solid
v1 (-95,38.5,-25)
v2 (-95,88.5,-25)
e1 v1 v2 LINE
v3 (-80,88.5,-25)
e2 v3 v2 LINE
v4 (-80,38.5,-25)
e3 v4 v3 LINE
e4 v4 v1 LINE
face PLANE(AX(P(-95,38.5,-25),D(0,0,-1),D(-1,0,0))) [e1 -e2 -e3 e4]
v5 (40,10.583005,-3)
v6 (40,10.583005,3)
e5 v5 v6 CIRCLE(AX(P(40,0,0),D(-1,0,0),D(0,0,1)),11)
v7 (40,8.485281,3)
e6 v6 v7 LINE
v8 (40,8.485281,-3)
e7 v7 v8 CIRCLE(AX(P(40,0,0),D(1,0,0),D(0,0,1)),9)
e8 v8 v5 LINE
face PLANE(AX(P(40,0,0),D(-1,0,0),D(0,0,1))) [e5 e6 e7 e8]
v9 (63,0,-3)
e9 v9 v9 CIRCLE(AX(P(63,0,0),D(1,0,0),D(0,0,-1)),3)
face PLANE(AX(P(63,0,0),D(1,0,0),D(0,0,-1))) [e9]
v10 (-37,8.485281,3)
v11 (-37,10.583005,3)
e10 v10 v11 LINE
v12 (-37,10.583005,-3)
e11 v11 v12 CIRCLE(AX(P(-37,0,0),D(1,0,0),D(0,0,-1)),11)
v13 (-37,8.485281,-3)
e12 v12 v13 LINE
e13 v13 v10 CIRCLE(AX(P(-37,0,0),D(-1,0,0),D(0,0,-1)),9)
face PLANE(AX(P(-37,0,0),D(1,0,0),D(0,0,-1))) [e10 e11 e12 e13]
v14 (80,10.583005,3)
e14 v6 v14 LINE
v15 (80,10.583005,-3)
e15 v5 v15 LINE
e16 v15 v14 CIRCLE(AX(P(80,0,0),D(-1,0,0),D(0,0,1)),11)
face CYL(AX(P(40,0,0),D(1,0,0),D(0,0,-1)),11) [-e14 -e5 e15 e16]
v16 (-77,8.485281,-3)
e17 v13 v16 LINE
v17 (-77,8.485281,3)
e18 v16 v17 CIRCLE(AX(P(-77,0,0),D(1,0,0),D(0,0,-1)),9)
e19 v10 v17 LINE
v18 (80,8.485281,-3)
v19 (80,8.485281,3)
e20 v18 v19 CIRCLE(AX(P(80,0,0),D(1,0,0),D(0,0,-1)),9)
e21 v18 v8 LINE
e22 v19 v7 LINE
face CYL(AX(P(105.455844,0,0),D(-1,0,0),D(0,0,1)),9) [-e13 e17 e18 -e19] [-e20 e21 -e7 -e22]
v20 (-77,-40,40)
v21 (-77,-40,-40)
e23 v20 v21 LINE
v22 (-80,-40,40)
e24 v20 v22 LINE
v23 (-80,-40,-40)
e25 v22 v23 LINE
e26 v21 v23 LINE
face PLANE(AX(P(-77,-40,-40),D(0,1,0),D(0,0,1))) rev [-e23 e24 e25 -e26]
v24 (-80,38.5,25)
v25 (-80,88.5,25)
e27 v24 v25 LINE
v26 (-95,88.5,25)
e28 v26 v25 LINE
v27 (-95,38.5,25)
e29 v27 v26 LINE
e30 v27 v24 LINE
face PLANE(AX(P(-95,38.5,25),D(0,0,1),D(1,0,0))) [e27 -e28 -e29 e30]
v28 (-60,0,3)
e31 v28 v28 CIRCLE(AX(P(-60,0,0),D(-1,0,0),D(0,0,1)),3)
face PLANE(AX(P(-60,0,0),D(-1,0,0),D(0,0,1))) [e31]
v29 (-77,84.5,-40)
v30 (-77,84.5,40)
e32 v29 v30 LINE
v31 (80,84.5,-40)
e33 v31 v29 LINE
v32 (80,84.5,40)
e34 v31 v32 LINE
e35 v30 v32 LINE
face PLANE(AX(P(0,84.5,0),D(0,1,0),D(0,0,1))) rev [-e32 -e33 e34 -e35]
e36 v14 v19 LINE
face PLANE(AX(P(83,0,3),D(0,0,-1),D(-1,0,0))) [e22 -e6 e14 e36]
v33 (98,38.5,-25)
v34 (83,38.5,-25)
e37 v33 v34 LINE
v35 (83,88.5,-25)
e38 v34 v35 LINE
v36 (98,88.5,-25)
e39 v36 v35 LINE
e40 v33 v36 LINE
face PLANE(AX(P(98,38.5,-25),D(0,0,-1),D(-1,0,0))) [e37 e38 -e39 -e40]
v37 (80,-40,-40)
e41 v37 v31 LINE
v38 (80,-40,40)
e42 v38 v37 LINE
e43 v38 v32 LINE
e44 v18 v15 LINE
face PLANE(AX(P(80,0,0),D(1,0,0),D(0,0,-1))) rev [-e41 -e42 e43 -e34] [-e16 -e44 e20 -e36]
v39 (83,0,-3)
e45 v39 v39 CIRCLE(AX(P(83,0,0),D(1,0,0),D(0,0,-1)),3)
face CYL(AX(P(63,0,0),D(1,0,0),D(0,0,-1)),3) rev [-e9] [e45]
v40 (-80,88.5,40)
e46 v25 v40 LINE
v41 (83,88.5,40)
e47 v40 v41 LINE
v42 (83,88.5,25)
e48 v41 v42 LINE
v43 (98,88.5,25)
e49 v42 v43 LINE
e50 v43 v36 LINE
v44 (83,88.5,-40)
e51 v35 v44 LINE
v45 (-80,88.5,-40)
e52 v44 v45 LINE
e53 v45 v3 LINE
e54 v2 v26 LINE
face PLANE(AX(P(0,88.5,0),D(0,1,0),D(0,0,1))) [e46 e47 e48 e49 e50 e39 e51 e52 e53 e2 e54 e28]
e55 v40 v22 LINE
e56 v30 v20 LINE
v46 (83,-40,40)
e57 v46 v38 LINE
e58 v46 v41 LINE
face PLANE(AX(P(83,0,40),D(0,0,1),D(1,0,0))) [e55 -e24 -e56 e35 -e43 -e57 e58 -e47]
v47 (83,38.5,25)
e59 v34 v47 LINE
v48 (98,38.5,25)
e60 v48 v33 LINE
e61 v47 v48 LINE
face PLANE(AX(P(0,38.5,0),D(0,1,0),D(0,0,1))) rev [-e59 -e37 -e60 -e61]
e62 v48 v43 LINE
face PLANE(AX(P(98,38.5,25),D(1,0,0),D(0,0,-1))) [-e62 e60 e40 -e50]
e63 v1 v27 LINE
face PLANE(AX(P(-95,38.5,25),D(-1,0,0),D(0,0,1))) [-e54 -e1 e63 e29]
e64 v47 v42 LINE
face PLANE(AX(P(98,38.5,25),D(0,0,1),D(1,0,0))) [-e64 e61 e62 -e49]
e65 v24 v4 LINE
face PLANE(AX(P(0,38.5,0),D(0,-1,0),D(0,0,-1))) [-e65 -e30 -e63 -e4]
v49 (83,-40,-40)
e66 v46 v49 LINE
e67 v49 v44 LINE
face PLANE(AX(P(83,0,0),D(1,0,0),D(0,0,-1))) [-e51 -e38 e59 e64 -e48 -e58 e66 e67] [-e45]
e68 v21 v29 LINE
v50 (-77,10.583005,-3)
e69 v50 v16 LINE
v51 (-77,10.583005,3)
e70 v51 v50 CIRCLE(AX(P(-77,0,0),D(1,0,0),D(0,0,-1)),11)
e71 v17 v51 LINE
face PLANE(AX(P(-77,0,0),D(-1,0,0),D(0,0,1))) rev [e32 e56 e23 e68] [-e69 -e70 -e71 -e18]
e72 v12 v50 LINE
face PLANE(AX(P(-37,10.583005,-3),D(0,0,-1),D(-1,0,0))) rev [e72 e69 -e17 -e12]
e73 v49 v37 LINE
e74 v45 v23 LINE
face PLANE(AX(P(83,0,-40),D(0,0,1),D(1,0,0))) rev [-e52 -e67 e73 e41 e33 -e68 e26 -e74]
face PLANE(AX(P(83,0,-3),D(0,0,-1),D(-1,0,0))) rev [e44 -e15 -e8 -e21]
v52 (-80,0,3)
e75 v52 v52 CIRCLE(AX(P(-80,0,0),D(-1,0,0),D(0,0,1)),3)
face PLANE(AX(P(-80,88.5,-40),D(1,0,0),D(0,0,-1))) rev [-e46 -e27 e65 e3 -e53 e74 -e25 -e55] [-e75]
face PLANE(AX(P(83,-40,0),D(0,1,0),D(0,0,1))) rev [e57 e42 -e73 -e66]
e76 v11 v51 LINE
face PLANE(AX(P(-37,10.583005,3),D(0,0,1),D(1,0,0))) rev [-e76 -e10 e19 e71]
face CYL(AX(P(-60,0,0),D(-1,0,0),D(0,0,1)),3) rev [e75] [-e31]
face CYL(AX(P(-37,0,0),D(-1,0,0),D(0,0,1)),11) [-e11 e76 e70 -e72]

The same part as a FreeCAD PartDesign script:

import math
import FreeCAD as App
import Part
import Sketcher

V = App.Vector


def add_polygon(sketch, points):
    """Adds a closed chain of lines whose ends are joined by coincident constraints."""
    first, n = sketch.GeometryCount, len(points)
    for a, b in zip(points, points[1:] + points[:1]):
        sketch.addGeometry(Part.LineSegment(App.Vector(*a, 0), App.Vector(*b, 0)), False)
    for i in range(n):
        sketch.addConstraint(Sketcher.Constraint("Coincident", first + i, 2, first + (i + 1) % n, 1))

doc = App.newDocument("Part")
body = doc.addObject("PartDesign::Body", "Body")

sketch1 = doc.addObject("Sketcher::SketchObject", "Sketch")
body.addObject(sketch1)
sketch1.AttachmentSupport = (doc.YZ_Plane, [""])
sketch1.MapMode = "FlatFace"
sketch1.AttachmentOffset = App.Placement(V(0, 0, 80), App.Rotation())
add_polygon(sketch1, [(-40, 40), (-40, -40), (88.5, -40), (88.5, 40)])
sketch1.addGeometry(Part.LineSegment(V(8.5, 3, 0), V(12, 3, 0)), False)
sketch1.addGeometry(Part.LineSegment(V(12, 3, 0), V(12, -3, 0)), False)
sketch1.addGeometry(Part.LineSegment(V(12, -3, 0), V(8.5, -3, 0)), False)
sketch1.addGeometry(Part.ArcOfCircle(Part.Circle(V(0, 0, 0), V(0, 0, 1), 9), math.radians(19), math.radians(341)), False)
sketch1.addConstraint(Sketcher.Constraint("Coincident", 4, 2, 5, 1))
sketch1.addConstraint(Sketcher.Constraint("Coincident", 5, 2, 6, 1))
sketch1.addConstraint(Sketcher.Constraint("Coincident", 6, 2, 7, 2))
sketch1.addConstraint(Sketcher.Constraint("Coincident", 7, 1, 4, 1))
sketch1.addConstraint(Sketcher.Constraint("Vertical", 0))
sketch1.addConstraint(Sketcher.Constraint("Horizontal", 1))
sketch1.addConstraint(Sketcher.Constraint("Vertical", 2))
sketch1.addConstraint(Sketcher.Constraint("Horizontal", 3))
sketch1.addConstraint(Sketcher.Constraint("Horizontal", 4))
sketch1.addConstraint(Sketcher.Constraint("Vertical", 5))
sketch1.addConstraint(Sketcher.Constraint("Horizontal", 6))
sketch1.addConstraint(Sketcher.Constraint("Coincident", 7, 3, -1, 1))
sketch1.addConstraint(Sketcher.Constraint("Vertical", 6, 2, 7, 1))
sketch1.addConstraint(Sketcher.Constraint("Radius", 7, 9.0))
sketch1.addConstraint(Sketcher.Constraint("DistanceY", 0, 2, 0, 1, 80.0))
sketch1.addConstraint(Sketcher.Constraint("DistanceY", 5, 2, 5, 1, 6.0))
sketch1.addConstraint(Sketcher.Constraint("DistanceX", 0, 2, -1, 1, 40.0))
sketch1.addConstraint(Sketcher.Constraint("DistanceY", 0, 2, -1, 1, 40.0))
sketch1.addConstraint(Sketcher.Constraint("DistanceX", -1, 1, 4, 2, 12.0))
sketch1.addConstraint(Sketcher.Constraint("DistanceX", 1, 1, 1, 2, 128.485281))
pad1 = doc.addObject("PartDesign::Pad", "Pad")
body.addObject(pad1)
pad1.Profile = sketch1
pad1.Length = 3

sketch2 = doc.addObject("Sketcher::SketchObject", "Sketch001")
body.addObject(sketch2)
sketch2.AttachmentSupport = (doc.YZ_Plane, [""])
sketch2.MapMode = "FlatFace"
sketch2.AttachmentOffset = App.Placement(V(0, 0, 40), App.Rotation())
sketch2.addGeometry(Part.LineSegment(V(10.6, 3, 0), V(8.5, 3, 0)), False)
sketch2.addGeometry(Part.ArcOfCircle(Part.Circle(V(0, 0, 0), V(0, 0, 1), 9), math.radians(19), math.radians(341)), False)
sketch2.addGeometry(Part.LineSegment(V(8.5, -3, 0), V(10.6, -3, 0)), False)
sketch2.addGeometry(Part.ArcOfCircle(Part.Circle(V(0, 0, 0), V(0, 0, 1), 11), math.radians(16), math.radians(344)), False)
sketch2.addConstraint(Sketcher.Constraint("Coincident", 0, 2, 1, 1))
sketch2.addConstraint(Sketcher.Constraint("Coincident", 1, 2, 2, 1))
sketch2.addConstraint(Sketcher.Constraint("Coincident", 2, 2, 3, 2))
sketch2.addConstraint(Sketcher.Constraint("Coincident", 3, 1, 0, 1))
sketch2.addConstraint(Sketcher.Constraint("Horizontal", 0))
sketch2.addConstraint(Sketcher.Constraint("Horizontal", 2))
sketch2.addConstraint(Sketcher.Constraint("Coincident", 1, 3, -1, 1))
sketch2.addConstraint(Sketcher.Constraint("Coincident", 3, 3, -1, 1))
sketch2.addConstraint(Sketcher.Constraint("Vertical", 0, 2, 1, 2))
sketch2.addConstraint(Sketcher.Constraint("Radius", 1, 9.0))
sketch2.addConstraint(Sketcher.Constraint("Radius", 3, 11.0))
sketch2.addConstraint(Sketcher.Constraint("DistanceY", -1, 1, 0, 2, 3.0))
pad2 = doc.addObject("PartDesign::Pad", "Pad001")
body.addObject(pad2)
pad2.Profile = sketch2
pad2.Length = 40
body2 = doc.addObject("PartDesign::Body", "Body001")

sketch3 = doc.addObject("Sketcher::SketchObject", "Sketch002")
body2.addObject(sketch3)
sketch3.AttachmentSupport = (doc.getObject("YZ_Plane001"), [""])
sketch3.MapMode = "FlatFace"
sketch3.AttachmentOffset = App.Placement(V(0, 0, -80), App.Rotation())
add_polygon(sketch3, [(88, 40), (-40, 40), (-40, -40), (88, -40)])
sketch3.addConstraint(Sketcher.Constraint("Horizontal", 0))
sketch3.addConstraint(Sketcher.Constraint("Vertical", 1))
sketch3.addConstraint(Sketcher.Constraint("Horizontal", 2))
sketch3.addConstraint(Sketcher.Constraint("Vertical", 3))
sketch3.addConstraint(Sketcher.Constraint("DistanceY", 1, 2, 1, 1, 80.0))
sketch3.addConstraint(Sketcher.Constraint("DistanceX", 0, 2, -1, 1, 40.0))
sketch3.addConstraint(Sketcher.Constraint("DistanceY", -1, 1, 0, 2, 40.0))
sketch3.addConstraint(Sketcher.Constraint("DistanceX", 0, 2, 0, 1, 128.485281))
pad3 = doc.addObject("PartDesign::Pad", "Pad002")
body2.addObject(pad3)
pad3.Profile = sketch3
pad3.Length = 3

sketch4 = doc.addObject("Sketcher::SketchObject", "Sketch003")
body2.addObject(sketch4)
sketch4.AttachmentSupport = (doc.getObject("YZ_Plane001"), [""])
sketch4.MapMode = "FlatFace"
sketch4.AttachmentOffset = App.Placement(V(0, 0, -77), App.Rotation())
sketch4.addGeometry(Part.LineSegment(V(8.5, 3, 0), V(10.6, 3, 0)), False)
sketch4.addGeometry(Part.ArcOfCircle(Part.Circle(V(0, 0, 0), V(0, 0, 1), 11), math.radians(16), math.radians(344)), False)
sketch4.addGeometry(Part.LineSegment(V(10.6, -3, 0), V(8.5, -3, 0)), False)
sketch4.addGeometry(Part.ArcOfCircle(Part.Circle(V(0, 0, 0), V(0, 0, 1), 9), math.radians(19), math.radians(341)), False)
sketch4.addConstraint(Sketcher.Constraint("Coincident", 0, 2, 1, 1))
sketch4.addConstraint(Sketcher.Constraint("Coincident", 1, 2, 2, 1))
sketch4.addConstraint(Sketcher.Constraint("Coincident", 2, 2, 3, 2))
sketch4.addConstraint(Sketcher.Constraint("Coincident", 3, 1, 0, 1))
sketch4.addConstraint(Sketcher.Constraint("Horizontal", 0))
sketch4.addConstraint(Sketcher.Constraint("Horizontal", 2))
sketch4.addConstraint(Sketcher.Constraint("Coincident", 1, 3, -1, 1))
sketch4.addConstraint(Sketcher.Constraint("Coincident", 3, 3, -1, 1))
sketch4.addConstraint(Sketcher.Constraint("Vertical", 0, 2, 1, 2))
sketch4.addConstraint(Sketcher.Constraint("Radius", 1, 11.0))
sketch4.addConstraint(Sketcher.Constraint("Radius", 3, 9.0))
sketch4.addConstraint(Sketcher.Constraint("DistanceY", -1, 1, 0, 2, 3.0))
pad4 = doc.addObject("PartDesign::Pad", "Pad003")
body2.addObject(pad4)
pad4.Profile = sketch4
pad4.Length = 40
body.AllowCompound = True
doc.recompute()

boolean = doc.addObject("PartDesign::Boolean", "Boolean")
body.addObject(boolean)
boolean.Type = "Fuse"
boolean.addObjects([body2])

sketch5 = doc.addObject("Sketcher::SketchObject", "Sketch004")
body.addObject(sketch5)
sketch5.AttachmentSupport = (doc.XZ_Plane, [""])
sketch5.MapMode = "FlatFace"
sketch5.AttachmentOffset = App.Placement(V(0, 0, -84.5), App.Rotation())
add_polygon(sketch5, [(-80, -40), (-80, 40), (83, 40), (83, -40)])
sketch5.addConstraint(Sketcher.Constraint("Vertical", 0))
sketch5.addConstraint(Sketcher.Constraint("Horizontal", 1))
sketch5.addConstraint(Sketcher.Constraint("Vertical", 2))
sketch5.addConstraint(Sketcher.Constraint("Horizontal", 3))
sketch5.addConstraint(Sketcher.Constraint("DistanceX", 1, 1, 1, 2, 163.0))
sketch5.addConstraint(Sketcher.Constraint("DistanceY", 0, 1, 0, 2, 80.0))
sketch5.addConstraint(Sketcher.Constraint("DistanceX", 0, 2, -1, 1, 80.0))
sketch5.addConstraint(Sketcher.Constraint("DistanceY", -1, 1, 0, 2, 40.0))
pad5 = doc.addObject("PartDesign::Pad", "Pad004")
body.addObject(pad5)
pad5.Profile = sketch5
pad5.Length = 4
pad5.Reversed = True

sketch6 = doc.addObject("Sketcher::SketchObject", "Sketch005")
body.addObject(sketch6)
sketch6.AttachmentSupport = (doc.YZ_Plane, [""])
sketch6.MapMode = "FlatFace"
sketch6.AttachmentOffset = App.Placement(V(0, 0, 80), App.Rotation())
sketch6.addGeometry(Part.LineSegment(V(8.5, -3, 0), V(12, -3, 0)), False)
sketch6.addGeometry(Part.LineSegment(V(12, -3, 0), V(12, 3, 0)), False)
sketch6.addGeometry(Part.LineSegment(V(12, 3, 0), V(8.5, 3, 0)), False)
sketch6.addGeometry(Part.ArcOfCircle(Part.Circle(V(0, 0, 0), V(0, 0, 1), 9), math.radians(19), math.radians(341)), False)
sketch6.addConstraint(Sketcher.Constraint("Coincident", 0, 2, 1, 1))
sketch6.addConstraint(Sketcher.Constraint("Coincident", 1, 2, 2, 1))
sketch6.addConstraint(Sketcher.Constraint("Coincident", 2, 2, 3, 1))
sketch6.addConstraint(Sketcher.Constraint("Coincident", 3, 2, 0, 1))
sketch6.addConstraint(Sketcher.Constraint("Horizontal", 0))
sketch6.addConstraint(Sketcher.Constraint("Vertical", 1))
sketch6.addConstraint(Sketcher.Constraint("Horizontal", 2))
sketch6.addConstraint(Sketcher.Constraint("Coincident", 3, 3, -1, 1))
sketch6.addConstraint(Sketcher.Constraint("Vertical", 2, 2, 3, 2))
sketch6.addConstraint(Sketcher.Constraint("Radius", 3, 9.0))
sketch6.addConstraint(Sketcher.Constraint("DistanceY", 1, 1, 1, 2, 6.0))
sketch6.addConstraint(Sketcher.Constraint("DistanceX", -1, 1, 0, 2, 12.0))
pad6 = doc.addObject("PartDesign::Pad", "Pad005")
body.addObject(pad6)
pad6.Profile = sketch6
pad6.Length = 3

sketch7 = doc.addObject("Sketcher::SketchObject", "Sketch006")
body.addObject(sketch7)
sketch7.AttachmentSupport = (doc.XZ_Plane, [""])
sketch7.MapMode = "FlatFace"
sketch7.AttachmentOffset = App.Placement(V(0, 0, -88.5), App.Rotation())
add_polygon(sketch7, [(-95, -25), (-95, 25), (-80, 25), (-80, -25)])
add_polygon(sketch7, [(83, -25), (83, 25), (98, 25), (98, -25)])
sketch7.addConstraint(Sketcher.Constraint("Vertical", 0))
sketch7.addConstraint(Sketcher.Constraint("Horizontal", 1))
sketch7.addConstraint(Sketcher.Constraint("Vertical", 2))
sketch7.addConstraint(Sketcher.Constraint("Horizontal", 3))
sketch7.addConstraint(Sketcher.Constraint("Vertical", 4))
sketch7.addConstraint(Sketcher.Constraint("Horizontal", 5))
sketch7.addConstraint(Sketcher.Constraint("Vertical", 6))
sketch7.addConstraint(Sketcher.Constraint("Horizontal", 7))
sketch7.addConstraint(Sketcher.Constraint("Horizontal", 1, 2, 4, 2))
sketch7.addConstraint(Sketcher.Constraint("Horizontal", 3, 2, 6, 2))
sketch7.addConstraint(Sketcher.Constraint("Equal", 3, 5))
sketch7.addConstraint(Sketcher.Constraint("DistanceX", 1, 1, 1, 2, 15.0))
sketch7.addConstraint(Sketcher.Constraint("DistanceY", 0, 1, 0, 2, 50.0))
sketch7.addConstraint(Sketcher.Constraint("DistanceX", 0, 2, -1, 1, 95.0))
sketch7.addConstraint(Sketcher.Constraint("DistanceY", -1, 1, 0, 2, 25.0))
sketch7.addConstraint(Sketcher.Constraint("DistanceX", -1, 1, 4, 2, 83.0))
pad7 = doc.addObject("PartDesign::Pad", "Pad006")
body.addObject(pad7)
pad7.Profile = sketch7
pad7.Length = 50

sketch8 = doc.addObject("Sketcher::SketchObject", "Sketch007")
body.addObject(sketch8)
sketch8.AttachmentSupport = (doc.YZ_Plane, [""])
sketch8.MapMode = "FlatFace"
sketch8.AttachmentOffset = App.Placement(V(0, 0, -77), App.Rotation())
sketch8.addGeometry(Part.Circle(V(0, 0, 0), V(0, 0, 1), 9), False)
sketch8.addConstraint(Sketcher.Constraint("Coincident", 0, 3, -1, 1))
sketch8.addConstraint(Sketcher.Constraint("Diameter", 0, 18.0))
pad8 = doc.addObject("PartDesign::Pad", "Pad007")
body.addObject(pad8)
pad8.Profile = sketch8
pad8.Length = 157

sketch9 = doc.addObject("Sketcher::SketchObject", "Sketch008")
body.addObject(sketch9)
sketch9.AttachmentSupport = (doc.YZ_Plane, [""])
sketch9.MapMode = "FlatFace"
sketch9.AttachmentOffset = App.Placement(V(0, 0, -80), App.Rotation())
sketch9.addGeometry(Part.Circle(V(0, 0, 0), V(0, 0, 1), 3), False)
sketch9.addConstraint(Sketcher.Constraint("Coincident", 0, 3, -1, 1))
sketch9.addConstraint(Sketcher.Constraint("Diameter", 0, 6.0))
pocket1 = doc.addObject("PartDesign::Pocket", "Pocket")
body.addObject(pocket1)
pocket1.Profile = sketch9
pocket1.Length = 20
pocket1.Reversed = True

sketch10 = doc.addObject("Sketcher::SketchObject", "Sketch009")
body.addObject(sketch10)
sketch10.AttachmentSupport = (doc.YZ_Plane, [""])
sketch10.MapMode = "FlatFace"
sketch10.AttachmentOffset = App.Placement(V(0, 0, 63), App.Rotation())
sketch10.addGeometry(Part.Circle(V(0, 0, 0), V(0, 0, 1), 3), False)
sketch10.addConstraint(Sketcher.Constraint("Coincident", 0, 3, -1, 1))
sketch10.addConstraint(Sketcher.Constraint("Diameter", 0, 6.0))
pocket2 = doc.addObject("PartDesign::Pocket", "Pocket001")
body.addObject(pocket2)
pocket2.Profile = sketch10
pocket2.Length = 20
pocket2.Reversed = True

doc.recompute()
